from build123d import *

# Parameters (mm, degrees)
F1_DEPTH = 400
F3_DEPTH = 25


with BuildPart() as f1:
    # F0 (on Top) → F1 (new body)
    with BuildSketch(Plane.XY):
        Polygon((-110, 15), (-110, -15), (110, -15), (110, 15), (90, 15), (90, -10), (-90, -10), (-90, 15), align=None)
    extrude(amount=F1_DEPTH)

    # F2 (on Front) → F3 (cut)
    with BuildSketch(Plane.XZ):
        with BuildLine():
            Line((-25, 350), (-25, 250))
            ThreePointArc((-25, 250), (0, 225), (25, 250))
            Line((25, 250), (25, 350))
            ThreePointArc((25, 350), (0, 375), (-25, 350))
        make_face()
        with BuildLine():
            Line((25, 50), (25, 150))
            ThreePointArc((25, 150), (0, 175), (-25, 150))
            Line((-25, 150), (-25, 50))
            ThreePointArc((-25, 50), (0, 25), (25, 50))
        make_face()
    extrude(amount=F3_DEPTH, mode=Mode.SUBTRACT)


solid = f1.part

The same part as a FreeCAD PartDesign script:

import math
import FreeCAD as App
import Part
import Sketcher
Q = App.Units.Quantity


def add_polygon(sketch, points):
    """Adds a closed chain of lines whose ends are joined by coincident constraints."""
    first, n = sketch.GeometryCount, len(points)
    for a, b in zip(points, points[1:] + points[:1]):
        sketch.addGeometry(Part.LineSegment(App.Vector(*a, 0), App.Vector(*b, 0)), False)
    for i in range(n):
        sketch.addConstraint(Sketcher.Constraint("Coincident", first + i, 2, first + (i + 1) % n, 1))

doc = App.newDocument("Part")
body = doc.addObject("PartDesign::Body", "Body")

sketch1 = body.newObject("Sketcher::SketchObject", "Sketch")
sketch1.AttachmentSupport = (doc.getObject("XY_Plane"), [""])
sketch1.MapMode = "FlatFace"
add_polygon(sketch1, [(-110, 15), (-110, -15), (110, -15), (110, 15), (90, 15), (90, -10), (-90, -10), (-90, 15)])
sketch1.addConstraint([
    Sketcher.Constraint("Vertical", 0),
    Sketcher.Constraint("Horizontal", 1),
    Sketcher.Constraint("Vertical", 2),
    Sketcher.Constraint("Horizontal", 3),
    Sketcher.Constraint("Vertical", 4),
    Sketcher.Constraint("Horizontal", 5),
    Sketcher.Constraint("Vertical", 6),
    Sketcher.Constraint("Horizontal", 7),
    Sketcher.Constraint("Symmetric", 0, 2, 2, 2, -1, 1),
    Sketcher.Constraint("Symmetric", 3, 2, 6, 2, -2),
    Sketcher.Constraint("DistanceX", 1, 1, 1, 2, Q("220 mm")),
    Sketcher.Constraint("DistanceX", 3, 2, 3, 1, Q("20 mm")),
    Sketcher.Constraint("DistanceY", 0, 2, 0, 1, Q("30 mm")),
    Sketcher.Constraint("DistanceY", 4, 2, 4, 1, Q("25 mm")),
])
pad1 = body.newObject("PartDesign::Pad", "Pad")
pad1.Profile = sketch1
pad1.Length = 400

sketch2 = body.newObject("Sketcher::SketchObject", "Sketch001")
sketch2.AttachmentSupport = (doc.getObject("XZ_Plane"), [""])
sketch2.MapMode = "FlatFace"
sketch2.addGeometry([
    Part.LineSegment(App.Vector(-25, 350, 0), App.Vector(-25, 250, 0)),
    Part.ArcOfCircle(Part.Circle(App.Vector(0, 250, 0), App.Vector(0, 0, 1), 25), math.radians(180), math.radians(360)),
    Part.LineSegment(App.Vector(25, 250, 0), App.Vector(25, 350, 0)),
    Part.ArcOfCircle(Part.Circle(App.Vector(0, 350, 0), App.Vector(0, 0, 1), 25), math.radians(0), math.radians(180)),
    Part.LineSegment(App.Vector(25, 50, 0), App.Vector(25, 150, 0)),
    Part.ArcOfCircle(Part.Circle(App.Vector(0, 150, 0), App.Vector(0, 0, 1), 25), math.radians(0), math.radians(180)),
    Part.LineSegment(App.Vector(-25, 150, 0), App.Vector(-25, 50, 0)),
    Part.ArcOfCircle(Part.Circle(App.Vector(0, 50, 0), App.Vector(0, 0, 1), 25), math.radians(180), math.radians(360)),
], False)
sketch2.addConstraint([
    Sketcher.Constraint("Tangent", 0, 2, 1, 1),
    Sketcher.Constraint("Tangent", 1, 2, 2, 1),
    Sketcher.Constraint("Tangent", 2, 2, 3, 1),
    Sketcher.Constraint("Tangent", 3, 2, 0, 1),
    Sketcher.Constraint("Tangent", 4, 2, 5, 1),
    Sketcher.Constraint("Tangent", 5, 2, 6, 1),
    Sketcher.Constraint("Tangent", 6, 2, 7, 1),
    Sketcher.Constraint("Tangent", 7, 2, 4, 1),
    Sketcher.Constraint("Vertical", 0),
    Sketcher.Constraint("Vertical", 2),
    Sketcher.Constraint("Vertical", 4),
    Sketcher.Constraint("Vertical", 6),
    Sketcher.Constraint("Equal", 3, 5),
    Sketcher.Constraint("PointOnObject", 1, 3, -2),
    Sketcher.Constraint("PointOnObject", 5, 3, -2),
    Sketcher.Constraint("Equal", 2, 4),
    Sketcher.Constraint("Radius", 1, Q("25 mm")),
    Sketcher.Constraint("DistanceY", 0, 2, 0, 1, Q("100 mm")),
    Sketcher.Constraint("DistanceY", -1, 1, 1, 3, Q("250 mm")),
    Sketcher.Constraint("DistanceY", -1, 1, 5, 3, Q("150 mm")),
])
pocket1 = body.newObject("PartDesign::Pocket", "Pocket")
pocket1.Profile = sketch2
pocket1.Length = 25
pocket1.Reversed = True

doc.recompute()
